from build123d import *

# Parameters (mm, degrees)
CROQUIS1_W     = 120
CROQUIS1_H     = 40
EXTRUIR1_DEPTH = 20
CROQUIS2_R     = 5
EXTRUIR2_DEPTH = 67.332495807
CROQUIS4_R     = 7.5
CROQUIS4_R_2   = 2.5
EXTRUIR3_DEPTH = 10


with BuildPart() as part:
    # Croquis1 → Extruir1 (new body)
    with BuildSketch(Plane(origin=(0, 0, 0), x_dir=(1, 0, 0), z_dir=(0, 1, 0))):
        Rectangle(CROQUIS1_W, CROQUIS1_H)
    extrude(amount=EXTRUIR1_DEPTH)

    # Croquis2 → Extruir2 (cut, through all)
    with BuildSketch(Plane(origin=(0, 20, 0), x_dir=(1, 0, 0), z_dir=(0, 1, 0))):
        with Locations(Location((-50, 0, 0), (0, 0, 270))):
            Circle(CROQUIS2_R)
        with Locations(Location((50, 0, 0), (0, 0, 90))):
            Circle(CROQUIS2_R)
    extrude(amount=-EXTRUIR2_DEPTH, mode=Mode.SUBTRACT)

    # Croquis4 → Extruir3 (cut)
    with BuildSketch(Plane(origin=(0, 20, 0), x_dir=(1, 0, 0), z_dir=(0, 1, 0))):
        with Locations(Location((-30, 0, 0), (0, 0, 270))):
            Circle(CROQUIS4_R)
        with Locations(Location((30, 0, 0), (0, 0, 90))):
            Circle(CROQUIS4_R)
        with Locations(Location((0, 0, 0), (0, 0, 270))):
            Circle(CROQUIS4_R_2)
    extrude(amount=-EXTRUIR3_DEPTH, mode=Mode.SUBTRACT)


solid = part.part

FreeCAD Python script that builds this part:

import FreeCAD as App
import Part
import Sketcher
from FreeCAD import Vector

doc = App.newDocument("Part")
body = doc.addObject("PartDesign::Body", "Body")

# Sketch on XZ plane
sketch1 = body.newObject("Sketcher::SketchObject", "Sketch")
sketch1.AttachmentSupport = (doc.getObject("XZ_Plane"), [""])
sketch1.MapMode = "FlatFace"
sketch1.addGeometry([
    Part.LineSegment(Vector(-60, -20, 0), Vector(-60, 20, 0)),
    Part.LineSegment(Vector(-60, 20, 0), Vector(60, 20, 0)),
    Part.LineSegment(Vector(60, 20, 0), Vector(60, -20, 0)),
    Part.LineSegment(Vector(60, -20, 0), Vector(-60, -20, 0)),
], False)
sketch1.addConstraint([
    Sketcher.Constraint("Coincident", 0, 2, 1, 1),
    Sketcher.Constraint("Coincident", 1, 2, 2, 1),
    Sketcher.Constraint("Coincident", 2, 2, 3, 1),
    Sketcher.Constraint("Coincident", 3, 2, 0, 1),
    Sketcher.Constraint("Vertical", 0),
    Sketcher.Constraint("Horizontal", 1),
    Sketcher.Constraint("Vertical", 2),
    Sketcher.Constraint("Horizontal", 3),
    Sketcher.Constraint("Symmetric", 0, 2, 2, 2, -1, 1),
    Sketcher.Constraint("DistanceX", 1, 1, 1, 2, 120.0),
    Sketcher.Constraint("DistanceY", 0, 1, 0, 2, 40.0),
])
pad1 = body.newObject("PartDesign::Pad", "Pad")
pad1.Profile = sketch1
pad1.Length = 20
pad1.Reversed = True

# Sketch on XZ plane
sketch2 = body.newObject("Sketcher::SketchObject", "Sketch001")
sketch2.AttachmentSupport = (doc.getObject("XZ_Plane"), [""])
sketch2.MapMode = "FlatFace"
sketch2.AttachmentOffset = App.Placement(Vector(0, 0, -20), App.Rotation())
sketch2.addGeometry([
    Part.Circle(Vector(-50, 0, 0), Vector(0, 0, 1), 5),
    Part.Circle(Vector(50, 0, 0), Vector(0, 0, 1), 5),
], False)
sketch2.addConstraint([
    Sketcher.Constraint("Equal", 0, 1),
    Sketcher.Constraint("Symmetric", 0, 3, 1, 3, -1, 1),
    Sketcher.Constraint("PointOnObject", 0, 3, -1),
    Sketcher.Constraint("Diameter", 0, 10.0),
    Sketcher.Constraint("DistanceX", 0, 3, -1, 1, 50.0),
])
pocket1 = body.newObject("PartDesign::Pocket", "Pocket")
pocket1.Profile = sketch2
pocket1.Type = "ThroughAll"
pocket1.Reversed = True

# Sketch on XZ plane
sketch3 = body.newObject("Sketcher::SketchObject", "Sketch002")
sketch3.AttachmentSupport = (doc.getObject("XZ_Plane"), [""])
sketch3.MapMode = "FlatFace"
sketch3.AttachmentOffset = App.Placement(Vector(0, 0, -20), App.Rotation())
sketch3.addGeometry([
    Part.Circle(Vector(-30, 0, 0), Vector(0, 0, 1), 7.5),
    Part.Circle(Vector(30, 0, 0), Vector(0, 0, 1), 7.5),
    Part.Circle(Vector(0, 0, 0), Vector(0, 0, 1), 2.5),
], False)
sketch3.addConstraint([
    Sketcher.Constraint("Coincident", 2, 3, -1, 1),
    Sketcher.Constraint("Equal", 0, 1),
    Sketcher.Constraint("Symmetric", 0, 3, 1, 3, -1, 1),
    Sketcher.Constraint("PointOnObject", 0, 3, -1),
    Sketcher.Constraint("Diameter", 0, 15.0),
    Sketcher.Constraint("Diameter", 2, 5.0),
    Sketcher.Constraint("DistanceX", 0, 3, -1, 1, 30.0),
])
pocket2 = body.newObject("PartDesign::Pocket", "Pocket001")
pocket2.Profile = sketch3
pocket2.Length = 10
pocket2.Reversed = True

doc.recompute()
